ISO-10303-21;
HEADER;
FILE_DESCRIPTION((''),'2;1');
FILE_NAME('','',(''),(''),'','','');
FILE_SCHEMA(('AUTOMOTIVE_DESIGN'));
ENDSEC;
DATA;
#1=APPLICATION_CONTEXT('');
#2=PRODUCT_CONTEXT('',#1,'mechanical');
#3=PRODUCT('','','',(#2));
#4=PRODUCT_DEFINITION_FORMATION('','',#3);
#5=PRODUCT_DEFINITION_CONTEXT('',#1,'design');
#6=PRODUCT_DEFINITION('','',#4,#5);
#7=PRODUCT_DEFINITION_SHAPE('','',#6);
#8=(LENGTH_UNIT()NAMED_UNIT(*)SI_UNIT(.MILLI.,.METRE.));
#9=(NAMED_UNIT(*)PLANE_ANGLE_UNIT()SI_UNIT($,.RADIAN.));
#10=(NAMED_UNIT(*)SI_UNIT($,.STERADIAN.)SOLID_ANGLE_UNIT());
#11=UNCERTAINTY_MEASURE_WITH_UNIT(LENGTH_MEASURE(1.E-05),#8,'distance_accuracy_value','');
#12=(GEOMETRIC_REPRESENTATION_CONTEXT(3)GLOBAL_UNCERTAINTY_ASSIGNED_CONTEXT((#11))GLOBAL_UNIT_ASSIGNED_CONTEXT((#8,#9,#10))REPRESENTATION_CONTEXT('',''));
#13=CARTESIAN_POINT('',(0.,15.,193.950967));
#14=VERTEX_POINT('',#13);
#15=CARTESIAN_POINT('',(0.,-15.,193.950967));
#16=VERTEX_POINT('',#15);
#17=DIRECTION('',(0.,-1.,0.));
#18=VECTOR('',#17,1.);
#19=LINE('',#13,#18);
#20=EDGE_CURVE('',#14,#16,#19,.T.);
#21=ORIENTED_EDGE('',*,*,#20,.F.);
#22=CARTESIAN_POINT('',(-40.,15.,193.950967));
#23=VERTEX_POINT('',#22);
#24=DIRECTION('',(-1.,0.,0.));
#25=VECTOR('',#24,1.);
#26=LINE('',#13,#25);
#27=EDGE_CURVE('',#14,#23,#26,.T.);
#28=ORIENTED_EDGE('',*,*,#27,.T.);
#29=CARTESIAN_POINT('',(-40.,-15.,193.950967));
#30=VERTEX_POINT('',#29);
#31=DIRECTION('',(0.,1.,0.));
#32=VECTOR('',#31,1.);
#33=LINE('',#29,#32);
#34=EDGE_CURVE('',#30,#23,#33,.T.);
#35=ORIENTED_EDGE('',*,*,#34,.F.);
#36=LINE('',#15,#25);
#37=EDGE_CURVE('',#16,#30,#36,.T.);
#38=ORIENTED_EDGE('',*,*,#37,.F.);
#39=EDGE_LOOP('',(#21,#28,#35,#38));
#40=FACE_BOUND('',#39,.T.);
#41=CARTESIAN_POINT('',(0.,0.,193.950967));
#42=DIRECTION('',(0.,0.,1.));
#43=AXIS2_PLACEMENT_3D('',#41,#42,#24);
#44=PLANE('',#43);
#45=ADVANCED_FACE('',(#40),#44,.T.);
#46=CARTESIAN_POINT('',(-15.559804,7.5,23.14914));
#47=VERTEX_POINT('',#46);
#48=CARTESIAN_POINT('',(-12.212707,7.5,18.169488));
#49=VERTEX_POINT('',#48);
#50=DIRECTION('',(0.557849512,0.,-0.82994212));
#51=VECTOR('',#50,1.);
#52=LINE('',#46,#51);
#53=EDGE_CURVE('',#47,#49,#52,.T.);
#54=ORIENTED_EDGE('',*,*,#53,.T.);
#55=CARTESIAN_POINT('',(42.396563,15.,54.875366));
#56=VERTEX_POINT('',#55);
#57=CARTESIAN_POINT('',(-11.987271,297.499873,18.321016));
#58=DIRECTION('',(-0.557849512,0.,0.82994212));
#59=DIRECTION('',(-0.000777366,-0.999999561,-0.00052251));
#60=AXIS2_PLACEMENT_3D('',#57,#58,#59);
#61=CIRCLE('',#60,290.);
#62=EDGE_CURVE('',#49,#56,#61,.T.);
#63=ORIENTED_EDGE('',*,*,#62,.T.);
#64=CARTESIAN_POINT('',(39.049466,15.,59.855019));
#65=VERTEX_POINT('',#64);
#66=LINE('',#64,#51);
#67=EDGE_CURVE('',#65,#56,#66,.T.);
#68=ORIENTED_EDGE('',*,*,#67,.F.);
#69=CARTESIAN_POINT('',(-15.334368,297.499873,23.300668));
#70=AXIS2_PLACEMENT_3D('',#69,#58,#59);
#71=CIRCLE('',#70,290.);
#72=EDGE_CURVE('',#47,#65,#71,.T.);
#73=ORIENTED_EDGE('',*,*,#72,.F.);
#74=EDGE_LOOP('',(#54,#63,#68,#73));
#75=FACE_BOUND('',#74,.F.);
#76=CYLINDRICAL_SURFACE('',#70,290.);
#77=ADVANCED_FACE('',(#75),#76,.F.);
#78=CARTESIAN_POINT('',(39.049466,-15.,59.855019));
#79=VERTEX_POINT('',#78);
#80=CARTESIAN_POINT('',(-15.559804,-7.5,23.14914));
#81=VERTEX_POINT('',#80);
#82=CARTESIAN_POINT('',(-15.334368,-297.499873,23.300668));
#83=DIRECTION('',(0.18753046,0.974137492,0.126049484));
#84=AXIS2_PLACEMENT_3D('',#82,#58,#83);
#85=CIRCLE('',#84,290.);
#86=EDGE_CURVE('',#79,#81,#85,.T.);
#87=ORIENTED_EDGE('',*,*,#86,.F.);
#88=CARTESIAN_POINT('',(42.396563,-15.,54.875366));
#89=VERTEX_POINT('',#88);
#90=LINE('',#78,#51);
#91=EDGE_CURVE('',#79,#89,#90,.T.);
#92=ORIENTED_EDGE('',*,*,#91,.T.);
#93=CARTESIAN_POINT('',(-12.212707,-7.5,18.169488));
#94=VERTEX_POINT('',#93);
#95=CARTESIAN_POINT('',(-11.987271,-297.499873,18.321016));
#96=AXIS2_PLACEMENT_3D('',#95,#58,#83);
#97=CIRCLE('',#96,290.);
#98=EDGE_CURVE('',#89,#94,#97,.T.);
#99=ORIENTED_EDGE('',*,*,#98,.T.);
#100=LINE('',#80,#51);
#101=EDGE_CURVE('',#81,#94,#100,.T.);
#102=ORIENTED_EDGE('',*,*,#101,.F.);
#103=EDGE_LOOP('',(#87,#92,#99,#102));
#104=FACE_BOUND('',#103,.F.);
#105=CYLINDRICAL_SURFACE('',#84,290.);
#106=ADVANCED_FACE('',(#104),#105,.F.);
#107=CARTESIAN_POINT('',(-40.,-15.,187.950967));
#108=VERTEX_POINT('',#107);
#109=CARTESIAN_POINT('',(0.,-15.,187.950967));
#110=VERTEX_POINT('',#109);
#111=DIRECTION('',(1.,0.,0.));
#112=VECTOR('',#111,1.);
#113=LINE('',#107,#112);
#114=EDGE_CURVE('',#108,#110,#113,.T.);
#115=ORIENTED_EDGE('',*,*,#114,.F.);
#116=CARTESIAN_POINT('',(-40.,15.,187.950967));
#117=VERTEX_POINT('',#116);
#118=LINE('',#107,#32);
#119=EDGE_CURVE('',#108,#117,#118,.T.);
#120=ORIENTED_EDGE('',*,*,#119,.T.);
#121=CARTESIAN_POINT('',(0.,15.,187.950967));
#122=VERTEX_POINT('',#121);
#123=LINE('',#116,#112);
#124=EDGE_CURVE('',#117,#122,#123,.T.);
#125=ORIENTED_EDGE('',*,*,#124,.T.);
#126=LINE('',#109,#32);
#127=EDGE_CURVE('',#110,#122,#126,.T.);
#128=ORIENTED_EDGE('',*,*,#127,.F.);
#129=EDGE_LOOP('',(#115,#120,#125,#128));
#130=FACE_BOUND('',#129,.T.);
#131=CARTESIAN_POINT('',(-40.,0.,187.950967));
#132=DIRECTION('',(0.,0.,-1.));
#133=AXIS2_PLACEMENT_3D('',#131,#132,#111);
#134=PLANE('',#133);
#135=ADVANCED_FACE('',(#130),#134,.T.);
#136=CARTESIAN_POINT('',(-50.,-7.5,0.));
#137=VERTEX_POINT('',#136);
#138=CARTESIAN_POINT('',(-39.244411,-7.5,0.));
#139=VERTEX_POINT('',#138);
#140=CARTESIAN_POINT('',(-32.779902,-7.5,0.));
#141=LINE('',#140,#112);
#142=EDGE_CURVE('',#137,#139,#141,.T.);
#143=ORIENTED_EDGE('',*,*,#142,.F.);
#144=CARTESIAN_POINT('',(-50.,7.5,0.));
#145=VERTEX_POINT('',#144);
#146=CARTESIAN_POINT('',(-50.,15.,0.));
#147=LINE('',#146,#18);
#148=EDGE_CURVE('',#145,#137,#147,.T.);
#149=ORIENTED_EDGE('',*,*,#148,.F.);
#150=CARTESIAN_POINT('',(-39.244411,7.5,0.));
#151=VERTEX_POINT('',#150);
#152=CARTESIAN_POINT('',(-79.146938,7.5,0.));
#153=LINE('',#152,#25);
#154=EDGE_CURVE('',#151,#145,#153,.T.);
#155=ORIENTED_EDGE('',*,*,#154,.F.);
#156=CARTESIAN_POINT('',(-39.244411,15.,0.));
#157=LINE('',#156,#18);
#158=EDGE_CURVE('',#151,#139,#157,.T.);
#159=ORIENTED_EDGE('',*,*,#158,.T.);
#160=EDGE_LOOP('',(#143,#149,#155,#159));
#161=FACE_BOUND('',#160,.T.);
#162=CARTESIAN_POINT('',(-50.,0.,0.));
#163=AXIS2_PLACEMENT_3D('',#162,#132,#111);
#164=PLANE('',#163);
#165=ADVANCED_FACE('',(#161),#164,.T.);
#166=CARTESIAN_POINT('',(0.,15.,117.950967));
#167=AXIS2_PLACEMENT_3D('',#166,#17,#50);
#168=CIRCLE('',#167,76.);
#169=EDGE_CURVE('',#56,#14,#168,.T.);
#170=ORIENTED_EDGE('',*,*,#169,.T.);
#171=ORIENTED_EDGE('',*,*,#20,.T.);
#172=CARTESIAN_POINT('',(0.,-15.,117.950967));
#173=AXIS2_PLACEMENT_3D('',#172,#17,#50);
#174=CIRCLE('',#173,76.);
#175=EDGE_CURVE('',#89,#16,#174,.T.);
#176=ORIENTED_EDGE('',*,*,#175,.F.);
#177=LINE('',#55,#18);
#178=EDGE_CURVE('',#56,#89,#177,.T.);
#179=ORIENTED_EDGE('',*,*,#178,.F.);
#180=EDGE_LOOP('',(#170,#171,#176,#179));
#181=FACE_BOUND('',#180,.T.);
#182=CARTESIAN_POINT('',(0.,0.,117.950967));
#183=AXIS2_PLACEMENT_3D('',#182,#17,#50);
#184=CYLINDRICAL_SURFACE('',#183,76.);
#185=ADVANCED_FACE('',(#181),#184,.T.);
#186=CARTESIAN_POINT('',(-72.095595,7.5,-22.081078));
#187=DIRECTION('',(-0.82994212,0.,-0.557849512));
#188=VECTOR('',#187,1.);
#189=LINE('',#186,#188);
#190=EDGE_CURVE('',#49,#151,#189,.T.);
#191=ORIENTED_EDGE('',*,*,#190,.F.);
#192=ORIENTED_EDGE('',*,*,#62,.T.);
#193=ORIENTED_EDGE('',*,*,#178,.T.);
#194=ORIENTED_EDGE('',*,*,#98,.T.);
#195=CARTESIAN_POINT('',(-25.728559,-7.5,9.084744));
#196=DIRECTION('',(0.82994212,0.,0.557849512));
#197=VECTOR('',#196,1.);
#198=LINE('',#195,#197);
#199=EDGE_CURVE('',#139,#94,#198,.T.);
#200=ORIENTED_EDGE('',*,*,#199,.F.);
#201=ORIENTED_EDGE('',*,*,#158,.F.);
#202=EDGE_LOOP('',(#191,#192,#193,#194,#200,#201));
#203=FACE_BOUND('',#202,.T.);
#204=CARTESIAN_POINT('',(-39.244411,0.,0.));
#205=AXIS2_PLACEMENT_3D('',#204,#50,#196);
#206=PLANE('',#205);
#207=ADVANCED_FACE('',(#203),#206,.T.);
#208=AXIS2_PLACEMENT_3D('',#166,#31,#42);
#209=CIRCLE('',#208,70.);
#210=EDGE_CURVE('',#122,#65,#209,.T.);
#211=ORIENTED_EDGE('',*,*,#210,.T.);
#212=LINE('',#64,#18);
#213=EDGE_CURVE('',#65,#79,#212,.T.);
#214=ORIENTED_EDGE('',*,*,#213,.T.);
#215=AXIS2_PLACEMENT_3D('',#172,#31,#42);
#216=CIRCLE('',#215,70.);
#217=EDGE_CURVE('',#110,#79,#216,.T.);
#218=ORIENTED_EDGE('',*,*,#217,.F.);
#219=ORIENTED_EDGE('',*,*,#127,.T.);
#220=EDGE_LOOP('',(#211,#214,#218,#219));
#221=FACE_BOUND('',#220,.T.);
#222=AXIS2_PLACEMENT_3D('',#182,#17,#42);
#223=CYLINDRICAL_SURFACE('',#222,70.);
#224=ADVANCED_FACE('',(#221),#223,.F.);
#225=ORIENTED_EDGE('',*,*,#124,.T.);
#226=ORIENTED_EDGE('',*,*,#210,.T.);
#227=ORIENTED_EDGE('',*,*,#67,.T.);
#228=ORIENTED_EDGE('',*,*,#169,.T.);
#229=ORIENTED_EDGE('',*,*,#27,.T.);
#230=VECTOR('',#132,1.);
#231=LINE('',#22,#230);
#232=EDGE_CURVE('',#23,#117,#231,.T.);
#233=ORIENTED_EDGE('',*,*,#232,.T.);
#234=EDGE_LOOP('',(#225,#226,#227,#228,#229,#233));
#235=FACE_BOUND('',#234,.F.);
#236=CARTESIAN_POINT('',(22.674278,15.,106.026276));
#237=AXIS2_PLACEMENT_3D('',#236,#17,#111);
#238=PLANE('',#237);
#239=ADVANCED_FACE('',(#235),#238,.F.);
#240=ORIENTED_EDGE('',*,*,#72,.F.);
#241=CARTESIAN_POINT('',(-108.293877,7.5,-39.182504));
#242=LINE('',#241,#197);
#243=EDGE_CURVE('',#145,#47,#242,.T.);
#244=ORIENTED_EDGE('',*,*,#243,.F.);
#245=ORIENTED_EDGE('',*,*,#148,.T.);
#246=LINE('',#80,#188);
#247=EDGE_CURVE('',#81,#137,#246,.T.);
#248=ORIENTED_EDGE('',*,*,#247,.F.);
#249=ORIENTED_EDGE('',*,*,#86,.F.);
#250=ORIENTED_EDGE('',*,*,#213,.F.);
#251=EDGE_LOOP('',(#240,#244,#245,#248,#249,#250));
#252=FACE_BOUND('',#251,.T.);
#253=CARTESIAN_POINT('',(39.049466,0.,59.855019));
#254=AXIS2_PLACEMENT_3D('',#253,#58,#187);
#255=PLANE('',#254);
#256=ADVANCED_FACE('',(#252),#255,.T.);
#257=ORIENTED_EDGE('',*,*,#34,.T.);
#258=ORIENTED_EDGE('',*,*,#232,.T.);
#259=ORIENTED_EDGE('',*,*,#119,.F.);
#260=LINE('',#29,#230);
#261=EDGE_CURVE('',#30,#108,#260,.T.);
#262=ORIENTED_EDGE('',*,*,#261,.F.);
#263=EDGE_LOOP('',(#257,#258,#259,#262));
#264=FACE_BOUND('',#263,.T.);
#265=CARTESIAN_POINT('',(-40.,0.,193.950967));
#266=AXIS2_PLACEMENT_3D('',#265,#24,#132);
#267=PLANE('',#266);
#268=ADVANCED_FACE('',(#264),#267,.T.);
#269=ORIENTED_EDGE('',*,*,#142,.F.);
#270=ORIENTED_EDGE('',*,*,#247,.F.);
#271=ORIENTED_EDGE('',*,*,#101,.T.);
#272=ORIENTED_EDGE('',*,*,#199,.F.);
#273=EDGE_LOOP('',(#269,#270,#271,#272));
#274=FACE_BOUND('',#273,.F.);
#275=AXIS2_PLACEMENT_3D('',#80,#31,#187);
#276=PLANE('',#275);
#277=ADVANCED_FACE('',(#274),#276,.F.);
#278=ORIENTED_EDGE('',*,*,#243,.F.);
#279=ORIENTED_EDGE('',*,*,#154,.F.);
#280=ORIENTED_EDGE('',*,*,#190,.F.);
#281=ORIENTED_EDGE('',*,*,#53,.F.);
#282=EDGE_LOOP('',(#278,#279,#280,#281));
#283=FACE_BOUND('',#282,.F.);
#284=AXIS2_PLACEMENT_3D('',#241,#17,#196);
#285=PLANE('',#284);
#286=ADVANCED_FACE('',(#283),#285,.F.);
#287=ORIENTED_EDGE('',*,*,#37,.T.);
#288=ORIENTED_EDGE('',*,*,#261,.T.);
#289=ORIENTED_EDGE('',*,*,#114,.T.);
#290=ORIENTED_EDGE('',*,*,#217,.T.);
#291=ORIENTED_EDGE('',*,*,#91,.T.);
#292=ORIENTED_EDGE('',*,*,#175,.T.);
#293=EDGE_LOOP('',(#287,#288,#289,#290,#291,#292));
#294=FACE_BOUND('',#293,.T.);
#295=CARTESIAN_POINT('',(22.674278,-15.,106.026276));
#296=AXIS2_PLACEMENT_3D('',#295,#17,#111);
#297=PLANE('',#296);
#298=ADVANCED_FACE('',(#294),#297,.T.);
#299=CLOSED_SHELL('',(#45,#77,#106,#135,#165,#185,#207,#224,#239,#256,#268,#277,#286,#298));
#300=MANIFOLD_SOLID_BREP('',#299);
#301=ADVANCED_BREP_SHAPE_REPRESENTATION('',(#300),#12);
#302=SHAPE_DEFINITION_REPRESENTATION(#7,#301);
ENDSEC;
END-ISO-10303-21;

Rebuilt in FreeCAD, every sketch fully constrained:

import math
import FreeCAD as App
import Part
import Sketcher
from FreeCAD import Vector

doc = App.newDocument("Part")
body = doc.addObject("PartDesign::Body", "Body")

# Sketch on XZ plane
sketch1 = body.newObject("Sketcher::SketchObject", "Sketch")
sketch1.AttachmentSupport = (doc.getObject("XZ_Plane"), [""])
sketch1.MapMode = "FlatFace"
sketch1.addGeometry([
    Part.ArcOfCircle(Part.Circle(Vector(0, 118, 0), Vector(0, 0, 1), 70), math.radians(-56), math.radians(90)),  # 0
    Part.LineSegment(Vector(39, 60, 0), Vector(-50, 0, 0)),  # 1
    Part.LineSegment(Vector(-50, 0, 0), Vector(-39, 0, 0)),  # 2
    Part.LineSegment(Vector(-39, 0, 0), Vector(42, 55, 0)),  # 3
    Part.ArcOfCircle(Part.Circle(Vector(0, 118, 0), Vector(0, 0, 1), 76), math.radians(-56), math.radians(90)),  # 4
    Part.LineSegment(Vector(0, 194, 0), Vector(-40, 194, 0)),  # 5
    Part.LineSegment(Vector(-40, 194, 0), Vector(-40, 188, 0)),  # 6
    Part.LineSegment(Vector(-40, 188, 0), Vector(0, 188, 0)),  # 7
], False)
sketch1.addConstraint([
    Sketcher.Constraint("Tangent", 0, 1, 1, 1),
    Sketcher.Constraint("Coincident", 1, 2, 2, 1),
    Sketcher.Constraint("Coincident", 2, 2, 3, 1),
    Sketcher.Constraint("Tangent", 3, 2, 4, 1),
    Sketcher.Constraint("Tangent", 4, 2, 5, 1),
    Sketcher.Constraint("Coincident", 5, 2, 6, 1),
    Sketcher.Constraint("Coincident", 6, 2, 7, 1),
    Sketcher.Constraint("Tangent", 7, 2, 0, 2),
    Sketcher.Constraint("Horizontal", 2),
    Sketcher.Constraint("Horizontal", 5),
    Sketcher.Constraint("Vertical", 6),
    Sketcher.Constraint("Horizontal", 7),
    Sketcher.Constraint("Coincident", 4, 3, 0, 3),
    Sketcher.Constraint("PointOnObject", 0, 3, -2),
    Sketcher.Constraint("PointOnObject", 1, 2, -1),
    Sketcher.Constraint("Parallel", 1, 3),
    Sketcher.Constraint("Radius", 0, 70.0),
    Sketcher.Constraint("Radius", 4, 76.0),
    Sketcher.Constraint("DistanceX", 5, 2, 5, 1, 40.0),
    Sketcher.Constraint("DistanceX", 1, 2, -1, 1, 50.0),
    Sketcher.Constraint("DistanceX", 2, 1, 2, 2, 10.755589),
])
pad1 = body.newObject("PartDesign::Pad", "Pad")
pad1.Profile = sketch1
pad1.Length = 30
pad1.Midplane = True

# Sketch on an angled plane
sketch2 = body.newObject("Sketcher::SketchObject", "Sketch001")
sketch2.Placement = App.Placement(Vector(-15.559804, 0, 23.14914), App.Rotation(Vector(0.82994212, 0, 0.557849512), Vector(0, 1.000000001, 0), Vector(-0.557849512, 0, 0.82994212), "ZXY"))
sketch2.addGeometry([
    Part.ArcOfCircle(Part.Circle(Vector(0, -297, 0), Vector(0, 0, 1), 290), math.radians(76.94), math.radians(90.05)),  # 0
    Part.LineSegment(Vector(0, -8, 0), Vector(-112, -8, 0)),  # 1
    Part.LineSegment(Vector(-112, -8, 0), Vector(-112, -33, 0)),  # 2
    Part.LineSegment(Vector(-112, -33, 0), Vector(66, -33, 0)),  # 3
    Part.LineSegment(Vector(66, -33, 0), Vector(66, -15, 0)),  # 4
    Part.LineSegment(Vector(-112, 8, 0), Vector(0, 8, 0)),  # 5
    Part.ArcOfCircle(Part.Circle(Vector(0, 297, 0), Vector(0, 0, 1), 290), math.radians(-90.05), math.radians(-76.94)),  # 6
    Part.LineSegment(Vector(66, 15, 0), Vector(66, 33, 0)),  # 7
    Part.LineSegment(Vector(66, 33, 0), Vector(-112, 33, 0)),  # 8
    Part.LineSegment(Vector(-112, 33, 0), Vector(-112, 8, 0)),  # 9
], False)
sketch2.addConstraint([
    Sketcher.Constraint("Coincident", 0, 2, 1, 1),
    Sketcher.Constraint("Coincident", 1, 2, 2, 1),
    Sketcher.Constraint("Coincident", 2, 2, 3, 1),
    Sketcher.Constraint("Coincident", 3, 2, 4, 1),
    Sketcher.Constraint("Coincident", 4, 2, 0, 1),
    Sketcher.Constraint("Coincident", 5, 2, 6, 1),
    Sketcher.Constraint("Coincident", 6, 2, 7, 1),
    Sketcher.Constraint("Coincident", 7, 2, 8, 1),
    Sketcher.Constraint("Coincident", 8, 2, 9, 1),
    Sketcher.Constraint("Coincident", 9, 2, 5, 1),
    Sketcher.Constraint("Horizontal", 1),
    Sketcher.Constraint("Horizontal", 3),
    Sketcher.Constraint("Vertical", 4),
    Sketcher.Constraint("Horizontal", 5),
    Sketcher.Constraint("Vertical", 7),
    Sketcher.Constraint("Horizontal", 8),
    Sketcher.Constraint("Equal", 0, 6),
    Sketcher.Constraint("Symmetric", 0, 2, 5, 2, -1, 1),
    Sketcher.Constraint("Symmetric", 4, 2, 6, 2, -1),
    Sketcher.Constraint("Symmetric", 2, 2, 8, 2, -1),
    Sketcher.Constraint("PointOnObject", 0, 2, -2),
    Sketcher.Constraint("Vertical", 1, 2, 9, 2),
    Sketcher.Constraint("Radius", 0, 290.0),
    Sketcher.Constraint("DistanceY", 4, 2, -1, 1, 15.0),
    Sketcher.Constraint("DistanceY", 0, 2, 5, 2, 15.0),
    Sketcher.Constraint("DistanceX", 1, 2, 1, 1, 111.735591),
    Sketcher.Constraint("DistanceX", 3, 1, 3, 2, 177.541058),
    Sketcher.Constraint("DistanceY", 4, 1, 4, 2, 18.441756),
    Sketcher.Constraint("DistanceX", -1, 1, 0, 3, 0.271629),
])
pocket1 = body.newObject("PartDesign::Pocket", "Pocket")
pocket1.Profile = sketch2
pocket1.Length = 10

doc.recompute()
